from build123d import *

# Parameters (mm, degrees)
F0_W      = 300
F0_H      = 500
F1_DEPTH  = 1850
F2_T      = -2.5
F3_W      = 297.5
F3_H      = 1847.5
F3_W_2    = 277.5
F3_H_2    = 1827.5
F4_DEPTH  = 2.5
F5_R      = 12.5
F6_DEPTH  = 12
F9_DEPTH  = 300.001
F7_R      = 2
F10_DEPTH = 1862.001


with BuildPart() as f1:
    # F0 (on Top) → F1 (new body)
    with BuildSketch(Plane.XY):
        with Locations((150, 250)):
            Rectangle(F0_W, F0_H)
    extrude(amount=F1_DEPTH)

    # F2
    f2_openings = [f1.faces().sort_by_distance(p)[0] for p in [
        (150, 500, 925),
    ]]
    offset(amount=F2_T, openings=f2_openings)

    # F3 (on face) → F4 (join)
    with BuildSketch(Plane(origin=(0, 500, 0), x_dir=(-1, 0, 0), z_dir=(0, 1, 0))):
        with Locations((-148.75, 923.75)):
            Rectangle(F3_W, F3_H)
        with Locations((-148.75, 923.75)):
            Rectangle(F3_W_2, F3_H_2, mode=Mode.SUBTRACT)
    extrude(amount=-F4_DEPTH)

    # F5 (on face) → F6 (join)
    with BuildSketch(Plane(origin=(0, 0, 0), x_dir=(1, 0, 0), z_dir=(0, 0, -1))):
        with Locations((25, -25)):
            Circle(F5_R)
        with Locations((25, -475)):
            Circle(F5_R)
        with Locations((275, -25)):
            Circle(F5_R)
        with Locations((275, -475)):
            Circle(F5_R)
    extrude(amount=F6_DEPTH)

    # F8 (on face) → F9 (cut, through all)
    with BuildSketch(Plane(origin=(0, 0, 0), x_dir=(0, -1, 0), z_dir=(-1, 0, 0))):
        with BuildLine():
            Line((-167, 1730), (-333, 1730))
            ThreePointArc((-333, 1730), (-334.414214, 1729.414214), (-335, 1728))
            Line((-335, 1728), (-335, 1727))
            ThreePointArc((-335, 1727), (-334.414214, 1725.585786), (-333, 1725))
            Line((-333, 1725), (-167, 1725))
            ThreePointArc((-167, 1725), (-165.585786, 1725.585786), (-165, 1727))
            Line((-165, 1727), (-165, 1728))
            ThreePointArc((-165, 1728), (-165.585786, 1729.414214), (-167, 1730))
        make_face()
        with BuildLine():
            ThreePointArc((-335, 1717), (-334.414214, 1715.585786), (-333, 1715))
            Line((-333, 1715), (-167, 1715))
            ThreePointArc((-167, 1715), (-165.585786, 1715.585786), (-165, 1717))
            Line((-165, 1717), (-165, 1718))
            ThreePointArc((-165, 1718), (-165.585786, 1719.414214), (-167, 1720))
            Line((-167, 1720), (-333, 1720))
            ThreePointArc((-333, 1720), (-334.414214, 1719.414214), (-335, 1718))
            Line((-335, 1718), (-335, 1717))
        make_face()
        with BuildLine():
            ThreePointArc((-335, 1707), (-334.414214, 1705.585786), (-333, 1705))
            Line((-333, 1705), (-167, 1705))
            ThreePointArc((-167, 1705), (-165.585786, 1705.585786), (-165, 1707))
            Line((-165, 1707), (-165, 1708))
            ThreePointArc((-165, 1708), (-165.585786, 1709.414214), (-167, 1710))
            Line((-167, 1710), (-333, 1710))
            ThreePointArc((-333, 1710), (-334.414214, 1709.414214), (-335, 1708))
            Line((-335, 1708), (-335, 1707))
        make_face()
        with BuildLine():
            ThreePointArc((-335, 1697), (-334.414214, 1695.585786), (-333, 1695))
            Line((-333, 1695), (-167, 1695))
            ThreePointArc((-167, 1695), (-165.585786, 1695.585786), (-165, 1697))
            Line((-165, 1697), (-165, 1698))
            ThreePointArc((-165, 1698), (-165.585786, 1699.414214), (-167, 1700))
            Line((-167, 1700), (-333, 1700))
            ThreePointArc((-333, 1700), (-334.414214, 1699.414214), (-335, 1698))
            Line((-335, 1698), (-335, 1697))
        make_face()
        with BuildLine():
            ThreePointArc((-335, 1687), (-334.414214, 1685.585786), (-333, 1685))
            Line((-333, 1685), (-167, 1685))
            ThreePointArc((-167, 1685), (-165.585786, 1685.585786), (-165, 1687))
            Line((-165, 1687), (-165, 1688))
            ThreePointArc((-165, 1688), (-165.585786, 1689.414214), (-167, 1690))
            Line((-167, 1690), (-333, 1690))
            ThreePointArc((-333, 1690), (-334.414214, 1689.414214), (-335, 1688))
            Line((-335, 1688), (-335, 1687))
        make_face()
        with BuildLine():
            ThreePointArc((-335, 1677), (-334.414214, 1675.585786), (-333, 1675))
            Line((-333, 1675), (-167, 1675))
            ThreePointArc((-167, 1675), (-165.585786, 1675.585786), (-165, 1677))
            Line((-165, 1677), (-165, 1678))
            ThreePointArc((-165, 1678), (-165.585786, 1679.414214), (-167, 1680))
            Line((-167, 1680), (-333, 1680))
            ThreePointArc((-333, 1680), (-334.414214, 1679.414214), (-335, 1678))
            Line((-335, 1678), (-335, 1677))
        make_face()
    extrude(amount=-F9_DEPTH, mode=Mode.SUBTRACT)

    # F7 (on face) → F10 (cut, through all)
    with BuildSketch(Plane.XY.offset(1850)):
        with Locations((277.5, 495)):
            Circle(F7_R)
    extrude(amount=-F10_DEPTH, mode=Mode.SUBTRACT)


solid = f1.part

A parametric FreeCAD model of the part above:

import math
import FreeCAD as App
import Part
import Sketcher


def faces_at(feature, points):
    """Names of the faces that lie closest to the given points."""
    faces = feature.Shape.Faces
    near = lambda p: min(range(len(faces)), key=lambda i: faces[i].distToShape(Part.Vertex(*p))[0])
    return sorted({f"Face{near(p) + 1}" for p in points})


def add_polygon(sketch, points):
    """Adds a closed chain of lines whose ends are joined by coincident constraints."""
    first, n = sketch.GeometryCount, len(points)
    for a, b in zip(points, points[1:] + points[:1]):
        sketch.addGeometry(Part.LineSegment(App.Vector(*a, 0), App.Vector(*b, 0)), False)
    for i in range(n):
        sketch.addConstraint(Sketcher.Constraint("Coincident", first + i, 2, first + (i + 1) % n, 1))

doc = App.newDocument("Part")
body = doc.addObject("PartDesign::Body", "Body")

sketch1 = doc.addObject("Sketcher::SketchObject", "Sketch")
body.addObject(sketch1)
sketch1.AttachmentSupport = (doc.XY_Plane, [""])
sketch1.MapMode = "FlatFace"
add_polygon(sketch1, [(0, 500), (0, 0), (300, 0), (300, 500)])
sketch1.addConstraint(Sketcher.Constraint("Vertical", 0))
sketch1.addConstraint(Sketcher.Constraint("Horizontal", 1))
sketch1.addConstraint(Sketcher.Constraint("Vertical", 2))
sketch1.addConstraint(Sketcher.Constraint("Horizontal", 3))
sketch1.addConstraint(Sketcher.Constraint("Coincident", 0, 2, -1, 1))
sketch1.addConstraint(Sketcher.Constraint("DistanceX", 1, 1, 1, 2, 300.0))
sketch1.addConstraint(Sketcher.Constraint("DistanceY", 0, 2, 0, 1, 500.0))
pad1 = doc.addObject("PartDesign::Pad", "Pad")
body.addObject(pad1)
pad1.Profile = sketch1
pad1.Length = 1850
doc.recompute()

thickness = doc.addObject("PartDesign::Thickness", "Thickness")
body.addObject(thickness)
thickness.Base = (pad1, faces_at(pad1, [(150, 500, 925)]))
thickness.Value = 2.5
thickness.Reversed = True
thickness.Join = "Arc"

sketch2 = doc.addObject("Sketcher::SketchObject", "Sketch001")
body.addObject(sketch2)
sketch2.AttachmentSupport = (doc.XZ_Plane, [""])
sketch2.MapMode = "FlatFace"
sketch2.AttachmentOffset = App.Placement(App.Vector(0, 0, -500), App.Rotation())
add_polygon(sketch2, [(297.5, 1847.5), (297.5, 0), (0, 0), (0, 1847.5)])
add_polygon(sketch2, [(10, 10), (287.5, 10), (287.5, 1837.5), (10, 1837.5)])
sketch2.addConstraint(Sketcher.Constraint("Vertical", 0))
sketch2.addConstraint(Sketcher.Constraint("Horizontal", 1))
sketch2.addConstraint(Sketcher.Constraint("Vertical", 2))
sketch2.addConstraint(Sketcher.Constraint("Horizontal", 3))
sketch2.addConstraint(Sketcher.Constraint("Horizontal", 4))
sketch2.addConstraint(Sketcher.Constraint("Vertical", 5))
sketch2.addConstraint(Sketcher.Constraint("Horizontal", 6))
sketch2.addConstraint(Sketcher.Constraint("Vertical", 7))
sketch2.addConstraint(Sketcher.Constraint("Coincident", 1, 2, -1, 1))
sketch2.addConstraint(Sketcher.Constraint("DistanceX", 1, 2, 1, 1, 297.5))
sketch2.addConstraint(Sketcher.Constraint("DistanceX", 4, 1, 4, 2, 277.5))
sketch2.addConstraint(Sketcher.Constraint("DistanceY", 0, 2, 0, 1, 1847.5))
sketch2.addConstraint(Sketcher.Constraint("DistanceY", 5, 1, 5, 2, 1827.5))
sketch2.addConstraint(Sketcher.Constraint("DistanceY", -1, 1, 4, 2, 10.0))
sketch2.addConstraint(Sketcher.Constraint("DistanceX", -1, 1, 6, 2, 10.0))
pad2 = doc.addObject("PartDesign::Pad", "Pad001")
body.addObject(pad2)
pad2.Profile = sketch2
pad2.Length = 2.5

sketch3 = doc.addObject("Sketcher::SketchObject", "Sketch002")
body.addObject(sketch3)
sketch3.AttachmentSupport = (doc.XY_Plane, [""])
sketch3.MapMode = "FlatFace"
sketch3.addGeometry(Part.Circle(App.Vector(25, 25, 0), App.Vector(0, 0, 1), 12.5), False)
sketch3.addGeometry(Part.Circle(App.Vector(25, 475, 0), App.Vector(0, 0, 1), 12.5), False)
sketch3.addGeometry(Part.Circle(App.Vector(275, 25, 0), App.Vector(0, 0, 1), 12.5), False)
sketch3.addGeometry(Part.Circle(App.Vector(275, 475, 0), App.Vector(0, 0, 1), 12.5), False)
sketch3.addConstraint(Sketcher.Constraint("Equal", 0, 1))
sketch3.addConstraint(Sketcher.Constraint("Equal", 1, 2))
sketch3.addConstraint(Sketcher.Constraint("Equal", 2, 3))
sketch3.addConstraint(Sketcher.Constraint("Horizontal", 0, 3, 2, 3))
sketch3.addConstraint(Sketcher.Constraint("Horizontal", 1, 3, 3, 3))
sketch3.addConstraint(Sketcher.Constraint("Vertical", 0, 3, 1, 3))
sketch3.addConstraint(Sketcher.Constraint("Vertical", 2, 3, 3, 3))
sketch3.addConstraint(Sketcher.Constraint("Diameter", 0, 25.0))
sketch3.addConstraint(Sketcher.Constraint("DistanceX", -1, 1, 0, 3, 25.0))
sketch3.addConstraint(Sketcher.Constraint("DistanceY", -1, 1, 0, 3, 25.0))
sketch3.addConstraint(Sketcher.Constraint("DistanceY", -1, 1, 1, 3, 475.0))
sketch3.addConstraint(Sketcher.Constraint("DistanceX", -1, 1, 2, 3, 275.0))
pad3 = doc.addObject("PartDesign::Pad", "Pad002")
body.addObject(pad3)
pad3.Profile = sketch3
pad3.Length = 12
pad3.Reversed = True

sketch4 = doc.addObject("Sketcher::SketchObject", "Sketch003")
body.addObject(sketch4)
sketch4.AttachmentSupport = (doc.YZ_Plane, [""])
sketch4.MapMode = "FlatFace"
sketch4.addGeometry(Part.LineSegment(App.Vector(167, 1730, 0), App.Vector(333, 1730, 0)), False)
sketch4.addGeometry(Part.ArcOfCircle(Part.Circle(App.Vector(333.000001, 1728.000001, 0), App.Vector(0, 0, 1), 1.999999), math.radians(-0.000043), math.radians(90.000043)), False)
sketch4.addGeometry(Part.LineSegment(App.Vector(335, 1728, 0), App.Vector(335, 1727, 0)), False)
sketch4.addGeometry(Part.ArcOfCircle(Part.Circle(App.Vector(333.000001, 1726.999999, 0), App.Vector(0, 0, 1), 1.999999), math.radians(-90.000043), math.radians(0.000043)), False)
sketch4.addGeometry(Part.LineSegment(App.Vector(333, 1725, 0), App.Vector(167, 1725, 0)), False)
sketch4.addGeometry(Part.ArcOfCircle(Part.Circle(App.Vector(166.999999, 1726.999999, 0), App.Vector(0, 0, 1), 1.999999), math.radians(179.999957), math.radians(270.000043)), False)
sketch4.addGeometry(Part.LineSegment(App.Vector(165, 1727, 0), App.Vector(165, 1728, 0)), False)
sketch4.addGeometry(Part.ArcOfCircle(Part.Circle(App.Vector(166.999999, 1728.000001, 0), App.Vector(0, 0, 1), 1.999999), math.radians(89.999957), math.radians(180.000043)), False)
sketch4.addGeometry(Part.ArcOfCircle(Part.Circle(App.Vector(333.000001, 1716.999999, 0), App.Vector(0, 0, 1), 1.999999), math.radians(-90.000043), math.radians(0.000043)), False)
sketch4.addGeometry(Part.LineSegment(App.Vector(333, 1715, 0), App.Vector(167, 1715, 0)), False)
sketch4.addGeometry(Part.ArcOfCircle(Part.Circle(App.Vector(166.999999, 1716.999999, 0), App.Vector(0, 0, 1), 1.999999), math.radians(179.999957), math.radians(270.000043)), False)
sketch4.addGeometry(Part.LineSegment(App.Vector(165, 1717, 0), App.Vector(165, 1718, 0)), False)
sketch4.addGeometry(Part.ArcOfCircle(Part.Circle(App.Vector(166.999999, 1718.000001, 0), App.Vector(0, 0, 1), 1.999999), math.radians(89.999957), math.radians(180.000043)), False)
sketch4.addGeometry(Part.LineSegment(App.Vector(167, 1720, 0), App.Vector(333, 1720, 0)), False)
sketch4.addGeometry(Part.ArcOfCircle(Part.Circle(App.Vector(333.000001, 1718.000001, 0), App.Vector(0, 0, 1), 1.999999), math.radians(-0.000043), math.radians(90.000043)), False)
sketch4.addGeometry(Part.LineSegment(App.Vector(335, 1718, 0), App.Vector(335, 1717, 0)), False)
sketch4.addGeometry(Part.ArcOfCircle(Part.Circle(App.Vector(333.000001, 1706.999999, 0), App.Vector(0, 0, 1), 1.999999), math.radians(-90.000043), math.radians(0.000043)), False)
sketch4.addGeometry(Part.LineSegment(App.Vector(333, 1705, 0), App.Vector(167, 1705, 0)), False)
sketch4.addGeometry(Part.ArcOfCircle(Part.Circle(App.Vector(166.999999, 1706.999999, 0), App.Vector(0, 0, 1), 1.999999), math.radians(179.999957), math.radians(270.000043)), False)
sketch4.addGeometry(Part.LineSegment(App.Vector(165, 1707, 0), App.Vector(165, 1708, 0)), False)
sketch4.addGeometry(Part.ArcOfCircle(Part.Circle(App.Vector(166.999999, 1708.000001, 0), App.Vector(0, 0, 1), 1.999999), math.radians(89.999957), math.radians(180.000043)), False)
sketch4.addGeometry(Part.LineSegment(App.Vector(167, 1710, 0), App.Vector(333, 1710, 0)), False)
sketch4.addGeometry(Part.ArcOfCircle(Part.Circle(App.Vector(333.000001, 1708.000001, 0), App.Vector(0, 0, 1), 1.999999), math.radians(-0.000043), math.radians(90.000043)), False)
sketch4.addGeometry(Part.LineSegment(App.Vector(335, 1708, 0), App.Vector(335, 1707, 0)), False)
sketch4.addGeometry(Part.ArcOfCircle(Part.Circle(App.Vector(333.000001, 1696.999999, 0), App.Vector(0, 0, 1), 1.999999), math.radians(-90.000043), math.radians(0.000043)), False)
sketch4.addGeometry(Part.LineSegment(App.Vector(333, 1695, 0), App.Vector(167, 1695, 0)), False)
sketch4.addGeometry(Part.ArcOfCircle(Part.Circle(App.Vector(166.999999, 1696.999999, 0), App.Vector(0, 0, 1), 1.999999), math.radians(179.999957), math.radians(270.000043)), False)
sketch4.addGeometry(Part.LineSegment(App.Vector(165, 1697, 0), App.Vector(165, 1698, 0)), False)
sketch4.addGeometry(Part.ArcOfCircle(Part.Circle(App.Vector(166.999999, 1698.000001, 0), App.Vector(0, 0, 1), 1.999999), math.radians(89.999957), math.radians(180.000043)), False)
sketch4.addGeometry(Part.LineSegment(App.Vector(167, 1700, 0), App.Vector(333, 1700, 0)), False)
sketch4.addGeometry(Part.ArcOfCircle(Part.Circle(App.Vector(333.000001, 1698.000001, 0), App.Vector(0, 0, 1), 1.999999), math.radians(-0.000043), math.radians(90.000043)), False)
sketch4.addGeometry(Part.LineSegment(App.Vector(335, 1698, 0), App.Vector(335, 1697, 0)), False)
sketch4.addGeometry(Part.ArcOfCircle(Part.Circle(App.Vector(333.000001, 1686.999999, 0), App.Vector(0, 0, 1), 1.999999), math.radians(-90.000043), math.radians(0.000043)), False)
sketch4.addGeometry(Part.LineSegment(App.Vector(333, 1685, 0), App.Vector(167, 1685, 0)), False)
sketch4.addGeometry(Part.ArcOfCircle(Part.Circle(App.Vector(166.999999, 1686.999999, 0), App.Vector(0, 0, 1), 1.999999), math.radians(179.999957), math.radians(270.000043)), False)
sketch4.addGeometry(Part.LineSegment(App.Vector(165, 1687, 0), App.Vector(165, 1688, 0)), False)
sketch4.addGeometry(Part.ArcOfCircle(Part.Circle(App.Vector(166.999999, 1688.000001, 0), App.Vector(0, 0, 1), 1.999999), math.radians(89.999957), math.radians(180.000043)), False)
sketch4.addGeometry(Part.LineSegment(App.Vector(167, 1690, 0), App.Vector(333, 1690, 0)), False)
sketch4.addGeometry(Part.ArcOfCircle(Part.Circle(App.Vector(333.000001, 1688.000001, 0), App.Vector(0, 0, 1), 1.999999), math.radians(-0.000043), math.radians(90.000043)), False)
sketch4.addGeometry(Part.LineSegment(App.Vector(335, 1688, 0), App.Vector(335, 1687, 0)), False)
sketch4.addGeometry(Part.ArcOfCircle(Part.Circle(App.Vector(333.000001, 1676.999999, 0), App.Vector(0, 0, 1), 1.999999), math.radians(-90.000043), math.radians(0.000043)), False)
sketch4.addGeometry(Part.LineSegment(App.Vector(333, 1675, 0), App.Vector(167, 1675, 0)), False)
sketch4.addGeometry(Part.ArcOfCircle(Part.Circle(App.Vector(166.999999, 1676.999999, 0), App.Vector(0, 0, 1), 1.999999), math.radians(179.999957), math.radians(270.000043)), False)
sketch4.addGeometry(Part.LineSegment(App.Vector(165, 1677, 0), App.Vector(165, 1678, 0)), False)
sketch4.addGeometry(Part.ArcOfCircle(Part.Circle(App.Vector(166.999999, 1678.000001, 0), App.Vector(0, 0, 1), 1.999999), math.radians(89.999957), math.radians(180.000043)), False)
sketch4.addGeometry(Part.LineSegment(App.Vector(167, 1680, 0), App.Vector(333, 1680, 0)), False)
sketch4.addGeometry(Part.ArcOfCircle(Part.Circle(App.Vector(333.000001, 1678.000001, 0), App.Vector(0, 0, 1), 1.999999), math.radians(-0.000043), math.radians(90.000043)), False)
sketch4.addGeometry(Part.LineSegment(App.Vector(335, 1678, 0), App.Vector(335, 1677, 0)), False)
sketch4.addConstraint(Sketcher.Constraint("Tangent", 0, 2, 1, 2))
sketch4.addConstraint(Sketcher.Constraint("Tangent", 1, 1, 2, 1))
sketch4.addConstraint(Sketcher.Constraint("Tangent", 2, 2, 3, 2))
sketch4.addConstraint(Sketcher.Constraint("Tangent", 3, 1, 4, 1))
sketch4.addConstraint(Sketcher.Constraint("Tangent", 4, 2, 5, 2))
sketch4.addConstraint(Sketcher.Constraint("Tangent", 5, 1, 6, 1))
sketch4.addConstraint(Sketcher.Constraint("Tangent", 6, 2, 7, 2))
sketch4.addConstraint(Sketcher.Constraint("Tangent", 7, 1, 0, 1))
sketch4.addConstraint(Sketcher.Constraint("Tangent", 8, 1, 9, 1))
sketch4.addConstraint(Sketcher.Constraint("Tangent", 9, 2, 10, 2))
sketch4.addConstraint(Sketcher.Constraint("Tangent", 10, 1, 11, 1))
sketch4.addConstraint(Sketcher.Constraint("Tangent", 11, 2, 12, 2))
sketch4.addConstraint(Sketcher.Constraint("Tangent", 12, 1, 13, 1))
sketch4.addConstraint(Sketcher.Constraint("Tangent", 13, 2, 14, 2))
sketch4.addConstraint(Sketcher.Constraint("Tangent", 14, 1, 15, 1))
sketch4.addConstraint(Sketcher.Constraint("Tangent", 15, 2, 8, 2))
sketch4.addConstraint(Sketcher.Constraint("Tangent", 16, 1, 17, 1))
sketch4.addConstraint(Sketcher.Constraint("Tangent", 17, 2, 18, 2))
sketch4.addConstraint(Sketcher.Constraint("Tangent", 18, 1, 19, 1))
sketch4.addConstraint(Sketcher.Constraint("Tangent", 19, 2, 20, 2))
sketch4.addConstraint(Sketcher.Constraint("Tangent", 20, 1, 21, 1))
sketch4.addConstraint(Sketcher.Constraint("Tangent", 21, 2, 22, 2))
sketch4.addConstraint(Sketcher.Constraint("Tangent", 22, 1, 23, 1))
sketch4.addConstraint(Sketcher.Constraint("Tangent", 23, 2, 16, 2))
sketch4.addConstraint(Sketcher.Constraint("Tangent", 24, 1, 25, 1))
sketch4.addConstraint(Sketcher.Constraint("Tangent", 25, 2, 26, 2))
sketch4.addConstraint(Sketcher.Constraint("Tangent", 26, 1, 27, 1))
sketch4.addConstraint(Sketcher.Constraint("Tangent", 27, 2, 28, 2))
sketch4.addConstraint(Sketcher.Constraint("Tangent", 28, 1, 29, 1))
sketch4.addConstraint(Sketcher.Constraint("Tangent", 29, 2, 30, 2))
sketch4.addConstraint(Sketcher.Constraint("Tangent", 30, 1, 31, 1))
sketch4.addConstraint(Sketcher.Constraint("Tangent", 31, 2, 24, 2))
sketch4.addConstraint(Sketcher.Constraint("Tangent", 32, 1, 33, 1))
sketch4.addConstraint(Sketcher.Constraint("Tangent", 33, 2, 34, 2))
sketch4.addConstraint(Sketcher.Constraint("Tangent", 34, 1, 35, 1))
sketch4.addConstraint(Sketcher.Constraint("Tangent", 35, 2, 36, 2))
sketch4.addConstraint(Sketcher.Constraint("Tangent", 36, 1, 37, 1))
sketch4.addConstraint(Sketcher.Constraint("Tangent", 37, 2, 38, 2))
sketch4.addConstraint(Sketcher.Constraint("Tangent", 38, 1, 39, 1))
sketch4.addConstraint(Sketcher.Constraint("Tangent", 39, 2, 32, 2))
sketch4.addConstraint(Sketcher.Constraint("Tangent", 40, 1, 41, 1))
sketch4.addConstraint(Sketcher.Constraint("Tangent", 41, 2, 42, 2))
sketch4.addConstraint(Sketcher.Constraint("Tangent", 42, 1, 43, 1))
sketch4.addConstraint(Sketcher.Constraint("Tangent", 43, 2, 44, 2))
sketch4.addConstraint(Sketcher.Constraint("Tangent", 44, 1, 45, 1))
sketch4.addConstraint(Sketcher.Constraint("Tangent", 45, 2, 46, 2))
sketch4.addConstraint(Sketcher.Constraint("Tangent", 46, 1, 47, 1))
sketch4.addConstraint(Sketcher.Constraint("Tangent", 47, 2, 40, 2))
sketch4.addConstraint(Sketcher.Constraint("Horizontal", 0))
sketch4.addConstraint(Sketcher.Constraint("Vertical", 2))
sketch4.addConstraint(Sketcher.Constraint("Horizontal", 4))
sketch4.addConstraint(Sketcher.Constraint("Vertical", 6))
sketch4.addConstraint(Sketcher.Constraint("Horizontal", 9))
sketch4.addConstraint(Sketcher.Constraint("Vertical", 11))
sketch4.addConstraint(Sketcher.Constraint("Horizontal", 13))
sketch4.addConstraint(Sketcher.Constraint("Vertical", 15))
sketch4.addConstraint(Sketcher.Constraint("Horizontal", 17))
sketch4.addConstraint(Sketcher.Constraint("Vertical", 19))
sketch4.addConstraint(Sketcher.Constraint("Horizontal", 21))
sketch4.addConstraint(Sketcher.Constraint("Vertical", 23))
sketch4.addConstraint(Sketcher.Constraint("Horizontal", 25))
sketch4.addConstraint(Sketcher.Constraint("Vertical", 27))
sketch4.addConstraint(Sketcher.Constraint("Horizontal", 29))
sketch4.addConstraint(Sketcher.Constraint("Vertical", 31))
sketch4.addConstraint(Sketcher.Constraint("Horizontal", 33))
sketch4.addConstraint(Sketcher.Constraint("Vertical", 35))
sketch4.addConstraint(Sketcher.Constraint("Horizontal", 37))
sketch4.addConstraint(Sketcher.Constraint("Vertical", 39))
sketch4.addConstraint(Sketcher.Constraint("Horizontal", 41))
sketch4.addConstraint(Sketcher.Constraint("Vertical", 43))
sketch4.addConstraint(Sketcher.Constraint("Horizontal", 45))
sketch4.addConstraint(Sketcher.Constraint("Vertical", 47))
sketch4.addConstraint(Sketcher.Constraint("Equal", 1, 3))
sketch4.addConstraint(Sketcher.Constraint("Equal", 3, 5))
sketch4.addConstraint(Sketcher.Constraint("Equal", 5, 7))
sketch4.addConstraint(Sketcher.Constraint("Equal", 7, 8))
sketch4.addConstraint(Sketcher.Constraint("Equal", 8, 10))
sketch4.addConstraint(Sketcher.Constraint("Equal", 10, 12))
sketch4.addConstraint(Sketcher.Constraint("Equal", 12, 14))
sketch4.addConstraint(Sketcher.Constraint("Equal", 14, 16))
sketch4.addConstraint(Sketcher.Constraint("Equal", 16, 18))
sketch4.addConstraint(Sketcher.Constraint("Equal", 18, 20))
sketch4.addConstraint(Sketcher.Constraint("Equal", 20, 22))
sketch4.addConstraint(Sketcher.Constraint("Equal", 22, 24))
sketch4.addConstraint(Sketcher.Constraint("Equal", 24, 26))
sketch4.addConstraint(Sketcher.Constraint("Equal", 26, 28))
sketch4.addConstraint(Sketcher.Constraint("Equal", 28, 30))
sketch4.addConstraint(Sketcher.Constraint("Equal", 30, 32))
sketch4.addConstraint(Sketcher.Constraint("Equal", 32, 34))
sketch4.addConstraint(Sketcher.Constraint("Equal", 34, 36))
sketch4.addConstraint(Sketcher.Constraint("Equal", 36, 38))
sketch4.addConstraint(Sketcher.Constraint("Equal", 38, 40))
sketch4.addConstraint(Sketcher.Constraint("Equal", 40, 42))
sketch4.addConstraint(Sketcher.Constraint("Equal", 42, 44))
sketch4.addConstraint(Sketcher.Constraint("Equal", 44, 46))
sketch4.addConstraint(Sketcher.Constraint("Vertical", 3, 3, 8, 3))
sketch4.addConstraint(Sketcher.Constraint("Vertical", 7, 3, 10, 3))
sketch4.addConstraint(Sketcher.Constraint("Vertical", 14, 3, 16, 3))
sketch4.addConstraint(Sketcher.Constraint("Vertical", 12, 3, 18, 3))
sketch4.addConstraint(Sketcher.Constraint("Vertical", 22, 3, 24, 3))
sketch4.addConstraint(Sketcher.Constraint("Vertical", 20, 3, 26, 3))
sketch4.addConstraint(Sketcher.Constraint("Vertical", 30, 3, 32, 3))
sketch4.addConstraint(Sketcher.Constraint("Vertical", 28, 3, 34, 3))
sketch4.addConstraint(Sketcher.Constraint("Vertical", 38, 3, 40, 3))
sketch4.addConstraint(Sketcher.Constraint("Vertical", 36, 3, 42, 3))
sketch4.addConstraint(Sketcher.Constraint("Equal", 6, 11))
sketch4.addConstraint(Sketcher.Constraint("Equal", 15, 19))
sketch4.addConstraint(Sketcher.Constraint("Equal", 23, 27))
sketch4.addConstraint(Sketcher.Constraint("Equal", 31, 35))
sketch4.addConstraint(Sketcher.Constraint("Equal", 39, 43))
sketch4.addConstraint(Sketcher.Constraint("Radius", 1, 1.999999))
sketch4.addConstraint(Sketcher.Constraint("DistanceX", 0, 1, 0, 2, 166.0))
sketch4.addConstraint(Sketcher.Constraint("DistanceY", 2, 2, 2, 1, 1.0))
sketch4.addConstraint(Sketcher.Constraint("DistanceX", -1, 1, 1, 3, 333.000001))
sketch4.addConstraint(Sketcher.Constraint("DistanceY", -1, 1, 1, 3, 1728.000001))
sketch4.addConstraint(Sketcher.Constraint("DistanceY", -1, 1, 8, 3, 1716.999999))
sketch4.addConstraint(Sketcher.Constraint("DistanceY", -1, 1, 16, 3, 1706.999999))
sketch4.addConstraint(Sketcher.Constraint("DistanceY", -1, 1, 24, 3, 1696.999999))
sketch4.addConstraint(Sketcher.Constraint("DistanceY", -1, 1, 32, 3, 1686.999999))
sketch4.addConstraint(Sketcher.Constraint("DistanceY", -1, 1, 40, 3, 1676.999999))
pocket1 = doc.addObject("PartDesign::Pocket", "Pocket")
body.addObject(pocket1)
pocket1.Profile = sketch4
pocket1.Type = "ThroughAll"
pocket1.Reversed = True

sketch5 = doc.addObject("Sketcher::SketchObject", "Sketch004")
body.addObject(sketch5)
sketch5.AttachmentSupport = (doc.XY_Plane, [""])
sketch5.MapMode = "FlatFace"
sketch5.AttachmentOffset = App.Placement(App.Vector(0, 0, 1850), App.Rotation())
sketch5.addGeometry(Part.Circle(App.Vector(277.5, 495, 0), App.Vector(0, 0, 1), 2), False)
sketch5.addConstraint(Sketcher.Constraint("Diameter", 0, 4.0))
sketch5.addConstraint(Sketcher.Constraint("DistanceY", -1, 1, 0, 3, 495.0))
sketch5.addConstraint(Sketcher.Constraint("DistanceX", -1, 1, 0, 3, 277.5))
pocket2 = doc.addObject("PartDesign::Pocket", "Pocket001")
body.addObject(pocket2)
pocket2.Profile = sketch5
pocket2.Type = "ThroughAll"

doc.recompute()
